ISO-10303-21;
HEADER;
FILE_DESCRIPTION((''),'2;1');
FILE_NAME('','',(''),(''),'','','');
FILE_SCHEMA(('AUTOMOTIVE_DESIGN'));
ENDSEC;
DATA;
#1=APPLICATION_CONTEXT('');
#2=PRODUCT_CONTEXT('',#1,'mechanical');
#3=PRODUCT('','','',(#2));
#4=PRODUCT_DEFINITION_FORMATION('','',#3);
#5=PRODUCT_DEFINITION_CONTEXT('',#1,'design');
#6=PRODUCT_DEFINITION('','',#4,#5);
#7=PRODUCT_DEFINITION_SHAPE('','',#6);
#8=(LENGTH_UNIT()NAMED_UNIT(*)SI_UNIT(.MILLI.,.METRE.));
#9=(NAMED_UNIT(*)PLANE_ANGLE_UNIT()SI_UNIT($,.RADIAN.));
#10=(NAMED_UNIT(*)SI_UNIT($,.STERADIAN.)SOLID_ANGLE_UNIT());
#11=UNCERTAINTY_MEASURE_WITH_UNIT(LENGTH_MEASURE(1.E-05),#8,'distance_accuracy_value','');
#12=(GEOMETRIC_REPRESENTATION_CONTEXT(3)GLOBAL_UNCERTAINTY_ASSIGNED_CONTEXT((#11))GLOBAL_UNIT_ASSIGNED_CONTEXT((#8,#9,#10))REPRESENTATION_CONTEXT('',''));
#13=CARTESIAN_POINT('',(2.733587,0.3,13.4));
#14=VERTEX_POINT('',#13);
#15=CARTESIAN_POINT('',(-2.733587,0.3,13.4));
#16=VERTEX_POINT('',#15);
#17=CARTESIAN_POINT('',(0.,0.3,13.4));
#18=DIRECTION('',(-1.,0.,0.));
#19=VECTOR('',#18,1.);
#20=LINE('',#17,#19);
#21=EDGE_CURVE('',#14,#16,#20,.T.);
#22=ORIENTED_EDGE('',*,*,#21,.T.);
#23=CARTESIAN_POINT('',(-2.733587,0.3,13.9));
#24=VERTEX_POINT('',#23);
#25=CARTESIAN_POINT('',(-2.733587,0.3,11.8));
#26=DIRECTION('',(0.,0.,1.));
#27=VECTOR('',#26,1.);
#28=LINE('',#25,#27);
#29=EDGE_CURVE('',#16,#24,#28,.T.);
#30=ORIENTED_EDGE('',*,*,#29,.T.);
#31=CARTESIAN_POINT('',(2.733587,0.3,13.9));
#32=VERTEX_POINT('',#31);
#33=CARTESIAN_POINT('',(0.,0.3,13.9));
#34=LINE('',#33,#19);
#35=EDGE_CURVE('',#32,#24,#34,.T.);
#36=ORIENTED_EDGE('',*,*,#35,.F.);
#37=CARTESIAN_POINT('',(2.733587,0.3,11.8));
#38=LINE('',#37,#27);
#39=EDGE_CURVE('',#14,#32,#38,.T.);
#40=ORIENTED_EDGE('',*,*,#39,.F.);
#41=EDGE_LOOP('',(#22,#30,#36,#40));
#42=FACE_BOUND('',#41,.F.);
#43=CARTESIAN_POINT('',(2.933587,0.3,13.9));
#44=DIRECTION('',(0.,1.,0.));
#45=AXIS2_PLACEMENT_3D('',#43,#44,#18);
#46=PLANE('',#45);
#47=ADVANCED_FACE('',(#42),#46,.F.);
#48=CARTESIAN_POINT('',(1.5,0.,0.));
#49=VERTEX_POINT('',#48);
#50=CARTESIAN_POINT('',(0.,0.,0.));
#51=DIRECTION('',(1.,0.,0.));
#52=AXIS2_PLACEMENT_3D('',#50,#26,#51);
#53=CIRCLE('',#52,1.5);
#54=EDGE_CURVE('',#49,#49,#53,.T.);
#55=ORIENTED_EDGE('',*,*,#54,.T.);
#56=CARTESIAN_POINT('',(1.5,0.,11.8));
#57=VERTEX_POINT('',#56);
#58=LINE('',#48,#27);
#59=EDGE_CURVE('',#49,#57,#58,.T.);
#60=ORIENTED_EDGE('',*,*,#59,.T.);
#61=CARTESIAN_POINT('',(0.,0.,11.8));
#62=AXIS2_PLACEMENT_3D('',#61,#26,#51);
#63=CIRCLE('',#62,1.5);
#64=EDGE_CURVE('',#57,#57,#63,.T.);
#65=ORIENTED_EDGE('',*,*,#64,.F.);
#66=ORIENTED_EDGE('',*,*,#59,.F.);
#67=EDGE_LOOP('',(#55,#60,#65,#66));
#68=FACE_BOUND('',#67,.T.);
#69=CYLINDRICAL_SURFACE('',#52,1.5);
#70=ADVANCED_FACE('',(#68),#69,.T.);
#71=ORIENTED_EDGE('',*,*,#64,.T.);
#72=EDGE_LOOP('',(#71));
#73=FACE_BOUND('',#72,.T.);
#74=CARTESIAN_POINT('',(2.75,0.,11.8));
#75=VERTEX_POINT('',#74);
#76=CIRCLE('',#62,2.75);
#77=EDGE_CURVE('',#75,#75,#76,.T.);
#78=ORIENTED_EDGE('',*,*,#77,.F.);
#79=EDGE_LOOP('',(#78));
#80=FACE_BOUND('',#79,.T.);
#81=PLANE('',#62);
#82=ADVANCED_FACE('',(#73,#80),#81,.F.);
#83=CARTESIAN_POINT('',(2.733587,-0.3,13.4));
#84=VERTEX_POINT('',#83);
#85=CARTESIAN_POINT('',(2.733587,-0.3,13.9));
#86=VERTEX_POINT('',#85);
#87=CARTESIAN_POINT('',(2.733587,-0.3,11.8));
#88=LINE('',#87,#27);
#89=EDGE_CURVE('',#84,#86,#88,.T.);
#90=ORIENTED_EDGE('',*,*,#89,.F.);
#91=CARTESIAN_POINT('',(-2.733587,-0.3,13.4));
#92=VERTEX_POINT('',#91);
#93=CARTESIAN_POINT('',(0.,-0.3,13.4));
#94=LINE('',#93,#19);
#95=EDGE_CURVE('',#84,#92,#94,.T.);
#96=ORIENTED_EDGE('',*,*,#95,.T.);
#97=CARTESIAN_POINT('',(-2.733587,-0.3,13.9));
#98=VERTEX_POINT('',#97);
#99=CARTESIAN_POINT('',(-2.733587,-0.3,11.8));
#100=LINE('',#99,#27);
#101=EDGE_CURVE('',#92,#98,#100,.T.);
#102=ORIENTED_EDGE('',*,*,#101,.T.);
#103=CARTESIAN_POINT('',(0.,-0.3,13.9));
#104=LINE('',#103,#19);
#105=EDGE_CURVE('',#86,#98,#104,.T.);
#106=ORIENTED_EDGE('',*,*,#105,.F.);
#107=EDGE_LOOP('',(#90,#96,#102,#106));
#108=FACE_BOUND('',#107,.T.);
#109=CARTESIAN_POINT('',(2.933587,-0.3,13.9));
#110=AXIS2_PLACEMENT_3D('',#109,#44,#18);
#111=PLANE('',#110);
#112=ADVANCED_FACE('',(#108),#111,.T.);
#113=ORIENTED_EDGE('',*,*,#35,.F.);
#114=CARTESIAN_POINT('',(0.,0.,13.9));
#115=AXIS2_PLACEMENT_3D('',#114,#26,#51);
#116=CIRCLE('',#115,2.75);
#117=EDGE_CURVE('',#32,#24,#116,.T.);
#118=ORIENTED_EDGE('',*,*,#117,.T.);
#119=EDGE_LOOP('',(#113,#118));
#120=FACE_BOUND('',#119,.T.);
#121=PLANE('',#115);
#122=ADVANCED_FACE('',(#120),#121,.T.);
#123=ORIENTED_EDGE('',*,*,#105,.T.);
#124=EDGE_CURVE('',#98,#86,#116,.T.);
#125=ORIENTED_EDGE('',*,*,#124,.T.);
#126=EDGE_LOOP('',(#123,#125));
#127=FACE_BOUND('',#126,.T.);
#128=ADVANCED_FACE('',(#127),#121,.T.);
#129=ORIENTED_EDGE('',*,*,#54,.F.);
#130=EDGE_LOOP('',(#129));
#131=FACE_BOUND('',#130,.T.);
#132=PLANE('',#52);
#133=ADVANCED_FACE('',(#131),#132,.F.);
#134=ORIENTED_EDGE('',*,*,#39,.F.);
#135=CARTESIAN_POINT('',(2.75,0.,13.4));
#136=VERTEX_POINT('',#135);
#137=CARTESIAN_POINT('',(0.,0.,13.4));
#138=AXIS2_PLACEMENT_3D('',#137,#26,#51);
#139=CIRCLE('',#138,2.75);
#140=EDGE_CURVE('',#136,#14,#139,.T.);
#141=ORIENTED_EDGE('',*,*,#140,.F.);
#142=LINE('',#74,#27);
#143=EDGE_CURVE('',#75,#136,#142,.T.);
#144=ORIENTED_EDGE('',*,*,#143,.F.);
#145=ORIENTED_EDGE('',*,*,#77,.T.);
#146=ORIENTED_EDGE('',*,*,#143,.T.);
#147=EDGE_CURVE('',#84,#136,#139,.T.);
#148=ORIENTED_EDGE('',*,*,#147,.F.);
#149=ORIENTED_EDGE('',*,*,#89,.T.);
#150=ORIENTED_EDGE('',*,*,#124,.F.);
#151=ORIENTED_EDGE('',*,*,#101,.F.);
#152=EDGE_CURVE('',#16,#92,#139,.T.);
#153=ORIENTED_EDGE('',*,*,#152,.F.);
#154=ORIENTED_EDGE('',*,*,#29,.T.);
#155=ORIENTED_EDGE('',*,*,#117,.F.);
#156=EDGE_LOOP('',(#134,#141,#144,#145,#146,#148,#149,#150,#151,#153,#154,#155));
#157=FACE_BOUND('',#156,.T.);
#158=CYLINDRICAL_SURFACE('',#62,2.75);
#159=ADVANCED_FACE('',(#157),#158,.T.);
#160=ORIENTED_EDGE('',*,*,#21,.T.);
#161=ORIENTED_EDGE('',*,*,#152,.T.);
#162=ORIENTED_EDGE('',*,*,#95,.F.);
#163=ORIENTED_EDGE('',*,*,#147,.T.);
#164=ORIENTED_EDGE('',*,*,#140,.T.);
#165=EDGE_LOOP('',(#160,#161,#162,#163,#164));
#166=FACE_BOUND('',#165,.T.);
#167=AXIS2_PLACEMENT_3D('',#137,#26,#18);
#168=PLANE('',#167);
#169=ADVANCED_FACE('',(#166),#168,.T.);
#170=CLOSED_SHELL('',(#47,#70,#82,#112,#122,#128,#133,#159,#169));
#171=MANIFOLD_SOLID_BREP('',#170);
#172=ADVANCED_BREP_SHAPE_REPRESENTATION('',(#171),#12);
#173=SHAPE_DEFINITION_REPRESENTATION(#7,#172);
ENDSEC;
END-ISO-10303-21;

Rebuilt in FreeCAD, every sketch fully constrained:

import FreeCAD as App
import Part
import Sketcher
from FreeCAD import Vector

doc = App.newDocument("Part")
body = doc.addObject("PartDesign::Body", "Body")

# Sketch on XZ plane
sketch1 = body.newObject("Sketcher::SketchObject", "Sketch")
sketch1.AttachmentSupport = (doc.getObject("XZ_Plane"), [""])
sketch1.MapMode = "FlatFace"
sketch1.addGeometry(Part.LineSegment(Vector(0, 0, 0), Vector(1.5, 0, 0)), False)
sketch1.addGeometry(Part.LineSegment(Vector(1.5, 0, 0), Vector(1.5, 11.8, 0)), False)
sketch1.addGeometry(Part.LineSegment(Vector(1.5, 11.8, 0), Vector(2.75, 11.8, 0)), False)
sketch1.addGeometry(Part.LineSegment(Vector(2.75, 11.8, 0), Vector(2.75, 13.9, 0)), False)
sketch1.addGeometry(Part.LineSegment(Vector(2.75, 13.9, 0), Vector(0, 13.9, 0)), False)
sketch1.addGeometry(Part.LineSegment(Vector(0, 13.9, 0), Vector(0, 0, 0)), False)
sketch1.addConstraint(Sketcher.Constraint("Coincident", 0, 2, 1, 1))
sketch1.addConstraint(Sketcher.Constraint("Coincident", 1, 2, 2, 1))
sketch1.addConstraint(Sketcher.Constraint("Coincident", 2, 2, 3, 1))
sketch1.addConstraint(Sketcher.Constraint("Coincident", 3, 2, 4, 1))
sketch1.addConstraint(Sketcher.Constraint("Coincident", 4, 2, 5, 1))
sketch1.addConstraint(Sketcher.Constraint("Coincident", 5, 2, 0, 1))
sketch1.addConstraint(Sketcher.Constraint("Horizontal", 0))
sketch1.addConstraint(Sketcher.Constraint("Vertical", 1))
sketch1.addConstraint(Sketcher.Constraint("Horizontal", 2))
sketch1.addConstraint(Sketcher.Constraint("Vertical", 3))
sketch1.addConstraint(Sketcher.Constraint("Horizontal", 4))
sketch1.addConstraint(Sketcher.Constraint("Vertical", 5))
sketch1.addConstraint(Sketcher.Constraint("Coincident", 5, 2, -1, 1))
sketch1.addConstraint(Sketcher.Constraint("DistanceX", 0, 1, 0, 2, 1.5))
sketch1.addConstraint(Sketcher.Constraint("DistanceY", 1, 1, 1, 2, 11.8))
sketch1.addConstraint(Sketcher.Constraint("DistanceY", 3, 1, 3, 2, 2.1))
sketch1.addConstraint(Sketcher.Constraint("DistanceX", 2, 1, 2, 2, 1.25))
revolution = body.newObject("PartDesign::Revolution", "Revolution")
revolution.Profile = sketch1
revolution.ReferenceAxis = (sketch1, ["V_Axis"])
revolution.Angle = 360

# Sketch on XY plane
sketch2 = body.newObject("Sketcher::SketchObject", "Sketch001")
sketch2.AttachmentSupport = (doc.getObject("XY_Plane"), [""])
sketch2.MapMode = "FlatFace"
sketch2.AttachmentOffset = App.Placement(Vector(0, 0, 13.9), App.Rotation())
sketch2.addGeometry(Part.LineSegment(Vector(2.933587, -0.3, 0), Vector(2.933587, 0.3, 0)), False)
sketch2.addGeometry(Part.LineSegment(Vector(2.933587, 0.3, 0), Vector(-2.933587, 0.3, 0)), False)
sketch2.addGeometry(Part.LineSegment(Vector(-2.933587, 0.3, 0), Vector(-2.933587, -0.3, 0)), False)
sketch2.addGeometry(Part.LineSegment(Vector(-2.933587, -0.3, 0), Vector(2.933587, -0.3, 0)), False)
sketch2.addConstraint(Sketcher.Constraint("Coincident", 0, 2, 1, 1))
sketch2.addConstraint(Sketcher.Constraint("Coincident", 1, 2, 2, 1))
sketch2.addConstraint(Sketcher.Constraint("Coincident", 2, 2, 3, 1))
sketch2.addConstraint(Sketcher.Constraint("Coincident", 3, 2, 0, 1))
sketch2.addConstraint(Sketcher.Constraint("Vertical", 0))
sketch2.addConstraint(Sketcher.Constraint("Horizontal", 1))
sketch2.addConstraint(Sketcher.Constraint("Vertical", 2))
sketch2.addConstraint(Sketcher.Constraint("Horizontal", 3))
sketch2.addConstraint(Sketcher.Constraint("Symmetric", 0, 2, 2, 2, -1, 1))
sketch2.addConstraint(Sketcher.Constraint("DistanceY", 0, 1, 0, 2, 0.6))
sketch2.addConstraint(Sketcher.Constraint("DistanceX", 1, 2, 1, 1, 5.867174))
pocket1 = body.newObject("PartDesign::Pocket", "Pocket")
pocket1.Profile = sketch2
pocket1.Length = 0.5

doc.recompute()
